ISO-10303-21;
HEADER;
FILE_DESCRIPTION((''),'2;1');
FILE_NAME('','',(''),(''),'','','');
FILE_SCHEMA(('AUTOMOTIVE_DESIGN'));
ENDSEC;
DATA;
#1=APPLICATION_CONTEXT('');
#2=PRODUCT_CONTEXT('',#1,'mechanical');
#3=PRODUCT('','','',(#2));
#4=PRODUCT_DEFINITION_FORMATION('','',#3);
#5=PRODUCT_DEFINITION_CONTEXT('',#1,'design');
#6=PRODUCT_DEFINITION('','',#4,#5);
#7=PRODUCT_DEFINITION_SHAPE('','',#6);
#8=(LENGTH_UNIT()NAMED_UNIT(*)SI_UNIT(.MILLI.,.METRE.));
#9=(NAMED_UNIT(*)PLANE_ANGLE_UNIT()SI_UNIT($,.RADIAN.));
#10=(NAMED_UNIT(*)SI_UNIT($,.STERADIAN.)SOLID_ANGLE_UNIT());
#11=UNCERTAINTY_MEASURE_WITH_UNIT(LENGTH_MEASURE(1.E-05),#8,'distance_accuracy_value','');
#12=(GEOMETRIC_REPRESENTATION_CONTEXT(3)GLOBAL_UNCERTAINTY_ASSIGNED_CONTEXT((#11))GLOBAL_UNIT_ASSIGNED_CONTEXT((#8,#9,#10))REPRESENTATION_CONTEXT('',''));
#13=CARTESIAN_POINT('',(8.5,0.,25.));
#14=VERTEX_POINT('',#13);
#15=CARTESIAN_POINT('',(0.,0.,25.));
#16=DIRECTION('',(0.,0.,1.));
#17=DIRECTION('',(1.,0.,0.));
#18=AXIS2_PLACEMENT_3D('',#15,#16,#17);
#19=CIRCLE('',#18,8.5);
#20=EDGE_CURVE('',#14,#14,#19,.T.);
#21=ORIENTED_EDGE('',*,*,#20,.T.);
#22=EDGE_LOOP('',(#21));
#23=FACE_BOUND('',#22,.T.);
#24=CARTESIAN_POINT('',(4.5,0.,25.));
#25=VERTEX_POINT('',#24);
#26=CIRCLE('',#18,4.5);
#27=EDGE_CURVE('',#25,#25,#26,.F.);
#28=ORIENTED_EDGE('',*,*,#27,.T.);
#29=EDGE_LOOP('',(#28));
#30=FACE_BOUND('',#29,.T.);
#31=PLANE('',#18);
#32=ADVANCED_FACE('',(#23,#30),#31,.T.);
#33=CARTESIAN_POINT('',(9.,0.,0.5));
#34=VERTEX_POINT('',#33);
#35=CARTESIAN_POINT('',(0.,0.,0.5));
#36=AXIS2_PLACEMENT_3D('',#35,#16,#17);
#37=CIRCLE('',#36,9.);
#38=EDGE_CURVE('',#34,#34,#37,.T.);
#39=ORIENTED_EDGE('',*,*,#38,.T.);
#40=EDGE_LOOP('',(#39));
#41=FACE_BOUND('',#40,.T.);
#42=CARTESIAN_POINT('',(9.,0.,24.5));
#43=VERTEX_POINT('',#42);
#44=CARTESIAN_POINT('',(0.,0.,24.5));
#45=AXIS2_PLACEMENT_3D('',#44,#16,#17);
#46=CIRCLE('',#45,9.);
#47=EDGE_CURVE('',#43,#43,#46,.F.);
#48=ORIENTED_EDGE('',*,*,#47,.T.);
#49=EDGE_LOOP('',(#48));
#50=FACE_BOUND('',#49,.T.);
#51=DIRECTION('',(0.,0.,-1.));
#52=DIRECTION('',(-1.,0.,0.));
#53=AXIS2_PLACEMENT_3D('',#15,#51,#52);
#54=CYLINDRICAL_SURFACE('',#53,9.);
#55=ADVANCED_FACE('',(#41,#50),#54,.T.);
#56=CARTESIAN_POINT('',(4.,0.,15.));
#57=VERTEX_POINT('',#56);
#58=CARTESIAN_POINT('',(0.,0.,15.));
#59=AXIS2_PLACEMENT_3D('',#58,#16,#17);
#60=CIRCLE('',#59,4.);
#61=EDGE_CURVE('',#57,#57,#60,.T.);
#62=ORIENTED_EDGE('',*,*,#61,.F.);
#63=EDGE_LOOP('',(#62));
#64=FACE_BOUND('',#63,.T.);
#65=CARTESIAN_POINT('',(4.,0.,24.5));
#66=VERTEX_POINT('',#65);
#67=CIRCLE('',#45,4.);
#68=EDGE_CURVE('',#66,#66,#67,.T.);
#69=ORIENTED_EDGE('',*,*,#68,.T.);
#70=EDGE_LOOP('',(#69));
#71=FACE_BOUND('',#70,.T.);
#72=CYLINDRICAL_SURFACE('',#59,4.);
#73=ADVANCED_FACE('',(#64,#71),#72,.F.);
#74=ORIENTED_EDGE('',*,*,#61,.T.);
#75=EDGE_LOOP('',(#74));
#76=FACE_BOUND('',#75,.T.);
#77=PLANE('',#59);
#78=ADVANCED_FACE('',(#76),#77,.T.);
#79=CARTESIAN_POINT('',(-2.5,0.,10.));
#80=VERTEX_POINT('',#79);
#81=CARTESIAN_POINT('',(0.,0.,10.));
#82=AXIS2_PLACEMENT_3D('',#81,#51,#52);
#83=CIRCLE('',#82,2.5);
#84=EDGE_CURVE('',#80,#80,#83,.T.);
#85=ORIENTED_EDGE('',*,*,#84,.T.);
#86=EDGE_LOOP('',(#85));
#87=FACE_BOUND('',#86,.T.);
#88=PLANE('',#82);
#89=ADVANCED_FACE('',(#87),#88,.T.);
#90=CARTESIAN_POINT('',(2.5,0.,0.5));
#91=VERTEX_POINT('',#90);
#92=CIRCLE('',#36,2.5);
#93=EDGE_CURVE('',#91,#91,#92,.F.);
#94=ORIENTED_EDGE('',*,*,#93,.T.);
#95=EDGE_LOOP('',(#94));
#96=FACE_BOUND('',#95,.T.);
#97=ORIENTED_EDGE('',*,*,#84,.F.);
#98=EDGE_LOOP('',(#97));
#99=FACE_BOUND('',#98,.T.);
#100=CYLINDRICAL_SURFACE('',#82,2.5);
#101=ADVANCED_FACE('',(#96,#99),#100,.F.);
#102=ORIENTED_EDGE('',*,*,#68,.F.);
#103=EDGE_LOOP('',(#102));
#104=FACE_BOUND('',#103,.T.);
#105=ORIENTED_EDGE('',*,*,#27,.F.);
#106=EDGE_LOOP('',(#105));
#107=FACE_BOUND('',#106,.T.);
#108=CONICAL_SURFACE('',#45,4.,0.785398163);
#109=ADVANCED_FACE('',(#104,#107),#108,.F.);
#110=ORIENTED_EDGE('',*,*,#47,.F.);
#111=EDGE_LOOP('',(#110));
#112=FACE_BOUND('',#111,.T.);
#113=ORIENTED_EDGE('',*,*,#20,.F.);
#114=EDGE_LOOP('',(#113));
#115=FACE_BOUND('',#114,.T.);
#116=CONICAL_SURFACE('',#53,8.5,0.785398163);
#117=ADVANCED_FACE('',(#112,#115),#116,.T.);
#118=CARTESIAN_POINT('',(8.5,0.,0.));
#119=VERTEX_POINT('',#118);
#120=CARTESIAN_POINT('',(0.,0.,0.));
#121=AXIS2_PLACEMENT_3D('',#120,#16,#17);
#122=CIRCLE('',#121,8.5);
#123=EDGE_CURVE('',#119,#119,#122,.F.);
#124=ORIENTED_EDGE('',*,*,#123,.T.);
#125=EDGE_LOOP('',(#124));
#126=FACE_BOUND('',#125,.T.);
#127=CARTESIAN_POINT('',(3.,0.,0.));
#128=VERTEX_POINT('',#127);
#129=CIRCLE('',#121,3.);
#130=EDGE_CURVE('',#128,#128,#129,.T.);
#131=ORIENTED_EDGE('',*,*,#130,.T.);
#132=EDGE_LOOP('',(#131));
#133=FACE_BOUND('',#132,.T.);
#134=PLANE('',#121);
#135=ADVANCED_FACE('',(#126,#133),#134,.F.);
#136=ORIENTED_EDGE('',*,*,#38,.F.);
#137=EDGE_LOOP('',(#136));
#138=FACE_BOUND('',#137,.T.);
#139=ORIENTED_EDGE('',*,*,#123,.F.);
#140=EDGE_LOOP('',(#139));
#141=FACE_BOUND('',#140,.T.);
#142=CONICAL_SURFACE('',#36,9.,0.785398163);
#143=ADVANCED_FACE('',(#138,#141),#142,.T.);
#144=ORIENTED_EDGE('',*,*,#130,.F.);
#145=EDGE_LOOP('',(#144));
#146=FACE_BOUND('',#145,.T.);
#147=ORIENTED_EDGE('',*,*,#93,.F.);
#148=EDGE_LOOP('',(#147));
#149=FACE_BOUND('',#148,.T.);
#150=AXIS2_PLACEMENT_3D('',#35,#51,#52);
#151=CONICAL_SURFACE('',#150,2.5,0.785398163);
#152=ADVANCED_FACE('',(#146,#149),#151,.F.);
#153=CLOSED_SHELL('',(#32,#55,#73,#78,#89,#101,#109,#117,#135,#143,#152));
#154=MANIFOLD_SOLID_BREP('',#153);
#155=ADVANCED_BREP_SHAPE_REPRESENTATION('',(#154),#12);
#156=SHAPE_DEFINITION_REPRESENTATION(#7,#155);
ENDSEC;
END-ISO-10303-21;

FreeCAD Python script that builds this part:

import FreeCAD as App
import Part
import Sketcher
from FreeCAD import Vector
Q = App.Units.Quantity


def edges_at(feature, points):
    """Names of the edges that pass closest to the given points."""
    edges = feature.Shape.Edges
    near = lambda p: min(range(len(edges)), key=lambda i: edges[i].distToShape(Part.Vertex(*p))[0])
    return sorted({f"Edge{near(p) + 1}" for p in points})

doc = App.newDocument("Part")
body = doc.addObject("PartDesign::Body", "Body")

sketch1 = body.newObject("Sketcher::SketchObject", "Sketch")
sketch1.AttachmentSupport = (doc.getObject("XY_Plane"), [""])
sketch1.MapMode = "FlatFace"
sketch1.addGeometry(Part.Circle(Vector(0, 0, 0), Vector(0, 0, 1), 9), False)
sketch1.addConstraint(Sketcher.Constraint("Coincident", 0, 3, -1, 1))
sketch1.addConstraint(Sketcher.Constraint("Diameter", 0, Q("18 mm")))
pad1 = body.newObject("PartDesign::Pad", "Pad")
pad1.Profile = sketch1
pad1.Length = 25

sketch2 = body.newObject("Sketcher::SketchObject", "Sketch001")
sketch2.AttachmentSupport = (doc.getObject("XY_Plane"), [""])
sketch2.MapMode = "FlatFace"
sketch2.AttachmentOffset = App.Placement(Vector(0, 0, 25), App.Rotation())
sketch2.addGeometry(Part.Circle(Vector(0, 0, 0), Vector(0, 0, 1), 4), False)
sketch2.addConstraint(Sketcher.Constraint("Coincident", 0, 3, -1, 1))
sketch2.addConstraint(Sketcher.Constraint("Diameter", 0, Q("8 mm")))
pocket1 = body.newObject("PartDesign::Pocket", "Pocket")
pocket1.Profile = sketch2
pocket1.Length = 10

sketch3 = body.newObject("Sketcher::SketchObject", "Sketch002")
sketch3.AttachmentSupport = (doc.getObject("XY_Plane"), [""])
sketch3.MapMode = "FlatFace"
sketch3.addGeometry(Part.Circle(Vector(0, 0, 0), Vector(0, 0, 1), 2.5), False)
sketch3.addConstraint(Sketcher.Constraint("Coincident", 0, 3, -1, 1))
sketch3.addConstraint(Sketcher.Constraint("Diameter", 0, Q("5 mm")))
pocket2 = body.newObject("PartDesign::Pocket", "Pocket001")
pocket2.Profile = sketch3
pocket2.Length = 10
pocket2.Reversed = True
doc.recompute()

chamfer = body.newObject("PartDesign::Chamfer", "Chamfer")
chamfer.Base = (pocket2, edges_at(pocket2, [
    (2.5, 0, 0),
    (-9, 0, 0),
    (-9, 0, 25),
    (-4, 0, 25),
]))
chamfer.Size = 0.5

doc.recompute()
